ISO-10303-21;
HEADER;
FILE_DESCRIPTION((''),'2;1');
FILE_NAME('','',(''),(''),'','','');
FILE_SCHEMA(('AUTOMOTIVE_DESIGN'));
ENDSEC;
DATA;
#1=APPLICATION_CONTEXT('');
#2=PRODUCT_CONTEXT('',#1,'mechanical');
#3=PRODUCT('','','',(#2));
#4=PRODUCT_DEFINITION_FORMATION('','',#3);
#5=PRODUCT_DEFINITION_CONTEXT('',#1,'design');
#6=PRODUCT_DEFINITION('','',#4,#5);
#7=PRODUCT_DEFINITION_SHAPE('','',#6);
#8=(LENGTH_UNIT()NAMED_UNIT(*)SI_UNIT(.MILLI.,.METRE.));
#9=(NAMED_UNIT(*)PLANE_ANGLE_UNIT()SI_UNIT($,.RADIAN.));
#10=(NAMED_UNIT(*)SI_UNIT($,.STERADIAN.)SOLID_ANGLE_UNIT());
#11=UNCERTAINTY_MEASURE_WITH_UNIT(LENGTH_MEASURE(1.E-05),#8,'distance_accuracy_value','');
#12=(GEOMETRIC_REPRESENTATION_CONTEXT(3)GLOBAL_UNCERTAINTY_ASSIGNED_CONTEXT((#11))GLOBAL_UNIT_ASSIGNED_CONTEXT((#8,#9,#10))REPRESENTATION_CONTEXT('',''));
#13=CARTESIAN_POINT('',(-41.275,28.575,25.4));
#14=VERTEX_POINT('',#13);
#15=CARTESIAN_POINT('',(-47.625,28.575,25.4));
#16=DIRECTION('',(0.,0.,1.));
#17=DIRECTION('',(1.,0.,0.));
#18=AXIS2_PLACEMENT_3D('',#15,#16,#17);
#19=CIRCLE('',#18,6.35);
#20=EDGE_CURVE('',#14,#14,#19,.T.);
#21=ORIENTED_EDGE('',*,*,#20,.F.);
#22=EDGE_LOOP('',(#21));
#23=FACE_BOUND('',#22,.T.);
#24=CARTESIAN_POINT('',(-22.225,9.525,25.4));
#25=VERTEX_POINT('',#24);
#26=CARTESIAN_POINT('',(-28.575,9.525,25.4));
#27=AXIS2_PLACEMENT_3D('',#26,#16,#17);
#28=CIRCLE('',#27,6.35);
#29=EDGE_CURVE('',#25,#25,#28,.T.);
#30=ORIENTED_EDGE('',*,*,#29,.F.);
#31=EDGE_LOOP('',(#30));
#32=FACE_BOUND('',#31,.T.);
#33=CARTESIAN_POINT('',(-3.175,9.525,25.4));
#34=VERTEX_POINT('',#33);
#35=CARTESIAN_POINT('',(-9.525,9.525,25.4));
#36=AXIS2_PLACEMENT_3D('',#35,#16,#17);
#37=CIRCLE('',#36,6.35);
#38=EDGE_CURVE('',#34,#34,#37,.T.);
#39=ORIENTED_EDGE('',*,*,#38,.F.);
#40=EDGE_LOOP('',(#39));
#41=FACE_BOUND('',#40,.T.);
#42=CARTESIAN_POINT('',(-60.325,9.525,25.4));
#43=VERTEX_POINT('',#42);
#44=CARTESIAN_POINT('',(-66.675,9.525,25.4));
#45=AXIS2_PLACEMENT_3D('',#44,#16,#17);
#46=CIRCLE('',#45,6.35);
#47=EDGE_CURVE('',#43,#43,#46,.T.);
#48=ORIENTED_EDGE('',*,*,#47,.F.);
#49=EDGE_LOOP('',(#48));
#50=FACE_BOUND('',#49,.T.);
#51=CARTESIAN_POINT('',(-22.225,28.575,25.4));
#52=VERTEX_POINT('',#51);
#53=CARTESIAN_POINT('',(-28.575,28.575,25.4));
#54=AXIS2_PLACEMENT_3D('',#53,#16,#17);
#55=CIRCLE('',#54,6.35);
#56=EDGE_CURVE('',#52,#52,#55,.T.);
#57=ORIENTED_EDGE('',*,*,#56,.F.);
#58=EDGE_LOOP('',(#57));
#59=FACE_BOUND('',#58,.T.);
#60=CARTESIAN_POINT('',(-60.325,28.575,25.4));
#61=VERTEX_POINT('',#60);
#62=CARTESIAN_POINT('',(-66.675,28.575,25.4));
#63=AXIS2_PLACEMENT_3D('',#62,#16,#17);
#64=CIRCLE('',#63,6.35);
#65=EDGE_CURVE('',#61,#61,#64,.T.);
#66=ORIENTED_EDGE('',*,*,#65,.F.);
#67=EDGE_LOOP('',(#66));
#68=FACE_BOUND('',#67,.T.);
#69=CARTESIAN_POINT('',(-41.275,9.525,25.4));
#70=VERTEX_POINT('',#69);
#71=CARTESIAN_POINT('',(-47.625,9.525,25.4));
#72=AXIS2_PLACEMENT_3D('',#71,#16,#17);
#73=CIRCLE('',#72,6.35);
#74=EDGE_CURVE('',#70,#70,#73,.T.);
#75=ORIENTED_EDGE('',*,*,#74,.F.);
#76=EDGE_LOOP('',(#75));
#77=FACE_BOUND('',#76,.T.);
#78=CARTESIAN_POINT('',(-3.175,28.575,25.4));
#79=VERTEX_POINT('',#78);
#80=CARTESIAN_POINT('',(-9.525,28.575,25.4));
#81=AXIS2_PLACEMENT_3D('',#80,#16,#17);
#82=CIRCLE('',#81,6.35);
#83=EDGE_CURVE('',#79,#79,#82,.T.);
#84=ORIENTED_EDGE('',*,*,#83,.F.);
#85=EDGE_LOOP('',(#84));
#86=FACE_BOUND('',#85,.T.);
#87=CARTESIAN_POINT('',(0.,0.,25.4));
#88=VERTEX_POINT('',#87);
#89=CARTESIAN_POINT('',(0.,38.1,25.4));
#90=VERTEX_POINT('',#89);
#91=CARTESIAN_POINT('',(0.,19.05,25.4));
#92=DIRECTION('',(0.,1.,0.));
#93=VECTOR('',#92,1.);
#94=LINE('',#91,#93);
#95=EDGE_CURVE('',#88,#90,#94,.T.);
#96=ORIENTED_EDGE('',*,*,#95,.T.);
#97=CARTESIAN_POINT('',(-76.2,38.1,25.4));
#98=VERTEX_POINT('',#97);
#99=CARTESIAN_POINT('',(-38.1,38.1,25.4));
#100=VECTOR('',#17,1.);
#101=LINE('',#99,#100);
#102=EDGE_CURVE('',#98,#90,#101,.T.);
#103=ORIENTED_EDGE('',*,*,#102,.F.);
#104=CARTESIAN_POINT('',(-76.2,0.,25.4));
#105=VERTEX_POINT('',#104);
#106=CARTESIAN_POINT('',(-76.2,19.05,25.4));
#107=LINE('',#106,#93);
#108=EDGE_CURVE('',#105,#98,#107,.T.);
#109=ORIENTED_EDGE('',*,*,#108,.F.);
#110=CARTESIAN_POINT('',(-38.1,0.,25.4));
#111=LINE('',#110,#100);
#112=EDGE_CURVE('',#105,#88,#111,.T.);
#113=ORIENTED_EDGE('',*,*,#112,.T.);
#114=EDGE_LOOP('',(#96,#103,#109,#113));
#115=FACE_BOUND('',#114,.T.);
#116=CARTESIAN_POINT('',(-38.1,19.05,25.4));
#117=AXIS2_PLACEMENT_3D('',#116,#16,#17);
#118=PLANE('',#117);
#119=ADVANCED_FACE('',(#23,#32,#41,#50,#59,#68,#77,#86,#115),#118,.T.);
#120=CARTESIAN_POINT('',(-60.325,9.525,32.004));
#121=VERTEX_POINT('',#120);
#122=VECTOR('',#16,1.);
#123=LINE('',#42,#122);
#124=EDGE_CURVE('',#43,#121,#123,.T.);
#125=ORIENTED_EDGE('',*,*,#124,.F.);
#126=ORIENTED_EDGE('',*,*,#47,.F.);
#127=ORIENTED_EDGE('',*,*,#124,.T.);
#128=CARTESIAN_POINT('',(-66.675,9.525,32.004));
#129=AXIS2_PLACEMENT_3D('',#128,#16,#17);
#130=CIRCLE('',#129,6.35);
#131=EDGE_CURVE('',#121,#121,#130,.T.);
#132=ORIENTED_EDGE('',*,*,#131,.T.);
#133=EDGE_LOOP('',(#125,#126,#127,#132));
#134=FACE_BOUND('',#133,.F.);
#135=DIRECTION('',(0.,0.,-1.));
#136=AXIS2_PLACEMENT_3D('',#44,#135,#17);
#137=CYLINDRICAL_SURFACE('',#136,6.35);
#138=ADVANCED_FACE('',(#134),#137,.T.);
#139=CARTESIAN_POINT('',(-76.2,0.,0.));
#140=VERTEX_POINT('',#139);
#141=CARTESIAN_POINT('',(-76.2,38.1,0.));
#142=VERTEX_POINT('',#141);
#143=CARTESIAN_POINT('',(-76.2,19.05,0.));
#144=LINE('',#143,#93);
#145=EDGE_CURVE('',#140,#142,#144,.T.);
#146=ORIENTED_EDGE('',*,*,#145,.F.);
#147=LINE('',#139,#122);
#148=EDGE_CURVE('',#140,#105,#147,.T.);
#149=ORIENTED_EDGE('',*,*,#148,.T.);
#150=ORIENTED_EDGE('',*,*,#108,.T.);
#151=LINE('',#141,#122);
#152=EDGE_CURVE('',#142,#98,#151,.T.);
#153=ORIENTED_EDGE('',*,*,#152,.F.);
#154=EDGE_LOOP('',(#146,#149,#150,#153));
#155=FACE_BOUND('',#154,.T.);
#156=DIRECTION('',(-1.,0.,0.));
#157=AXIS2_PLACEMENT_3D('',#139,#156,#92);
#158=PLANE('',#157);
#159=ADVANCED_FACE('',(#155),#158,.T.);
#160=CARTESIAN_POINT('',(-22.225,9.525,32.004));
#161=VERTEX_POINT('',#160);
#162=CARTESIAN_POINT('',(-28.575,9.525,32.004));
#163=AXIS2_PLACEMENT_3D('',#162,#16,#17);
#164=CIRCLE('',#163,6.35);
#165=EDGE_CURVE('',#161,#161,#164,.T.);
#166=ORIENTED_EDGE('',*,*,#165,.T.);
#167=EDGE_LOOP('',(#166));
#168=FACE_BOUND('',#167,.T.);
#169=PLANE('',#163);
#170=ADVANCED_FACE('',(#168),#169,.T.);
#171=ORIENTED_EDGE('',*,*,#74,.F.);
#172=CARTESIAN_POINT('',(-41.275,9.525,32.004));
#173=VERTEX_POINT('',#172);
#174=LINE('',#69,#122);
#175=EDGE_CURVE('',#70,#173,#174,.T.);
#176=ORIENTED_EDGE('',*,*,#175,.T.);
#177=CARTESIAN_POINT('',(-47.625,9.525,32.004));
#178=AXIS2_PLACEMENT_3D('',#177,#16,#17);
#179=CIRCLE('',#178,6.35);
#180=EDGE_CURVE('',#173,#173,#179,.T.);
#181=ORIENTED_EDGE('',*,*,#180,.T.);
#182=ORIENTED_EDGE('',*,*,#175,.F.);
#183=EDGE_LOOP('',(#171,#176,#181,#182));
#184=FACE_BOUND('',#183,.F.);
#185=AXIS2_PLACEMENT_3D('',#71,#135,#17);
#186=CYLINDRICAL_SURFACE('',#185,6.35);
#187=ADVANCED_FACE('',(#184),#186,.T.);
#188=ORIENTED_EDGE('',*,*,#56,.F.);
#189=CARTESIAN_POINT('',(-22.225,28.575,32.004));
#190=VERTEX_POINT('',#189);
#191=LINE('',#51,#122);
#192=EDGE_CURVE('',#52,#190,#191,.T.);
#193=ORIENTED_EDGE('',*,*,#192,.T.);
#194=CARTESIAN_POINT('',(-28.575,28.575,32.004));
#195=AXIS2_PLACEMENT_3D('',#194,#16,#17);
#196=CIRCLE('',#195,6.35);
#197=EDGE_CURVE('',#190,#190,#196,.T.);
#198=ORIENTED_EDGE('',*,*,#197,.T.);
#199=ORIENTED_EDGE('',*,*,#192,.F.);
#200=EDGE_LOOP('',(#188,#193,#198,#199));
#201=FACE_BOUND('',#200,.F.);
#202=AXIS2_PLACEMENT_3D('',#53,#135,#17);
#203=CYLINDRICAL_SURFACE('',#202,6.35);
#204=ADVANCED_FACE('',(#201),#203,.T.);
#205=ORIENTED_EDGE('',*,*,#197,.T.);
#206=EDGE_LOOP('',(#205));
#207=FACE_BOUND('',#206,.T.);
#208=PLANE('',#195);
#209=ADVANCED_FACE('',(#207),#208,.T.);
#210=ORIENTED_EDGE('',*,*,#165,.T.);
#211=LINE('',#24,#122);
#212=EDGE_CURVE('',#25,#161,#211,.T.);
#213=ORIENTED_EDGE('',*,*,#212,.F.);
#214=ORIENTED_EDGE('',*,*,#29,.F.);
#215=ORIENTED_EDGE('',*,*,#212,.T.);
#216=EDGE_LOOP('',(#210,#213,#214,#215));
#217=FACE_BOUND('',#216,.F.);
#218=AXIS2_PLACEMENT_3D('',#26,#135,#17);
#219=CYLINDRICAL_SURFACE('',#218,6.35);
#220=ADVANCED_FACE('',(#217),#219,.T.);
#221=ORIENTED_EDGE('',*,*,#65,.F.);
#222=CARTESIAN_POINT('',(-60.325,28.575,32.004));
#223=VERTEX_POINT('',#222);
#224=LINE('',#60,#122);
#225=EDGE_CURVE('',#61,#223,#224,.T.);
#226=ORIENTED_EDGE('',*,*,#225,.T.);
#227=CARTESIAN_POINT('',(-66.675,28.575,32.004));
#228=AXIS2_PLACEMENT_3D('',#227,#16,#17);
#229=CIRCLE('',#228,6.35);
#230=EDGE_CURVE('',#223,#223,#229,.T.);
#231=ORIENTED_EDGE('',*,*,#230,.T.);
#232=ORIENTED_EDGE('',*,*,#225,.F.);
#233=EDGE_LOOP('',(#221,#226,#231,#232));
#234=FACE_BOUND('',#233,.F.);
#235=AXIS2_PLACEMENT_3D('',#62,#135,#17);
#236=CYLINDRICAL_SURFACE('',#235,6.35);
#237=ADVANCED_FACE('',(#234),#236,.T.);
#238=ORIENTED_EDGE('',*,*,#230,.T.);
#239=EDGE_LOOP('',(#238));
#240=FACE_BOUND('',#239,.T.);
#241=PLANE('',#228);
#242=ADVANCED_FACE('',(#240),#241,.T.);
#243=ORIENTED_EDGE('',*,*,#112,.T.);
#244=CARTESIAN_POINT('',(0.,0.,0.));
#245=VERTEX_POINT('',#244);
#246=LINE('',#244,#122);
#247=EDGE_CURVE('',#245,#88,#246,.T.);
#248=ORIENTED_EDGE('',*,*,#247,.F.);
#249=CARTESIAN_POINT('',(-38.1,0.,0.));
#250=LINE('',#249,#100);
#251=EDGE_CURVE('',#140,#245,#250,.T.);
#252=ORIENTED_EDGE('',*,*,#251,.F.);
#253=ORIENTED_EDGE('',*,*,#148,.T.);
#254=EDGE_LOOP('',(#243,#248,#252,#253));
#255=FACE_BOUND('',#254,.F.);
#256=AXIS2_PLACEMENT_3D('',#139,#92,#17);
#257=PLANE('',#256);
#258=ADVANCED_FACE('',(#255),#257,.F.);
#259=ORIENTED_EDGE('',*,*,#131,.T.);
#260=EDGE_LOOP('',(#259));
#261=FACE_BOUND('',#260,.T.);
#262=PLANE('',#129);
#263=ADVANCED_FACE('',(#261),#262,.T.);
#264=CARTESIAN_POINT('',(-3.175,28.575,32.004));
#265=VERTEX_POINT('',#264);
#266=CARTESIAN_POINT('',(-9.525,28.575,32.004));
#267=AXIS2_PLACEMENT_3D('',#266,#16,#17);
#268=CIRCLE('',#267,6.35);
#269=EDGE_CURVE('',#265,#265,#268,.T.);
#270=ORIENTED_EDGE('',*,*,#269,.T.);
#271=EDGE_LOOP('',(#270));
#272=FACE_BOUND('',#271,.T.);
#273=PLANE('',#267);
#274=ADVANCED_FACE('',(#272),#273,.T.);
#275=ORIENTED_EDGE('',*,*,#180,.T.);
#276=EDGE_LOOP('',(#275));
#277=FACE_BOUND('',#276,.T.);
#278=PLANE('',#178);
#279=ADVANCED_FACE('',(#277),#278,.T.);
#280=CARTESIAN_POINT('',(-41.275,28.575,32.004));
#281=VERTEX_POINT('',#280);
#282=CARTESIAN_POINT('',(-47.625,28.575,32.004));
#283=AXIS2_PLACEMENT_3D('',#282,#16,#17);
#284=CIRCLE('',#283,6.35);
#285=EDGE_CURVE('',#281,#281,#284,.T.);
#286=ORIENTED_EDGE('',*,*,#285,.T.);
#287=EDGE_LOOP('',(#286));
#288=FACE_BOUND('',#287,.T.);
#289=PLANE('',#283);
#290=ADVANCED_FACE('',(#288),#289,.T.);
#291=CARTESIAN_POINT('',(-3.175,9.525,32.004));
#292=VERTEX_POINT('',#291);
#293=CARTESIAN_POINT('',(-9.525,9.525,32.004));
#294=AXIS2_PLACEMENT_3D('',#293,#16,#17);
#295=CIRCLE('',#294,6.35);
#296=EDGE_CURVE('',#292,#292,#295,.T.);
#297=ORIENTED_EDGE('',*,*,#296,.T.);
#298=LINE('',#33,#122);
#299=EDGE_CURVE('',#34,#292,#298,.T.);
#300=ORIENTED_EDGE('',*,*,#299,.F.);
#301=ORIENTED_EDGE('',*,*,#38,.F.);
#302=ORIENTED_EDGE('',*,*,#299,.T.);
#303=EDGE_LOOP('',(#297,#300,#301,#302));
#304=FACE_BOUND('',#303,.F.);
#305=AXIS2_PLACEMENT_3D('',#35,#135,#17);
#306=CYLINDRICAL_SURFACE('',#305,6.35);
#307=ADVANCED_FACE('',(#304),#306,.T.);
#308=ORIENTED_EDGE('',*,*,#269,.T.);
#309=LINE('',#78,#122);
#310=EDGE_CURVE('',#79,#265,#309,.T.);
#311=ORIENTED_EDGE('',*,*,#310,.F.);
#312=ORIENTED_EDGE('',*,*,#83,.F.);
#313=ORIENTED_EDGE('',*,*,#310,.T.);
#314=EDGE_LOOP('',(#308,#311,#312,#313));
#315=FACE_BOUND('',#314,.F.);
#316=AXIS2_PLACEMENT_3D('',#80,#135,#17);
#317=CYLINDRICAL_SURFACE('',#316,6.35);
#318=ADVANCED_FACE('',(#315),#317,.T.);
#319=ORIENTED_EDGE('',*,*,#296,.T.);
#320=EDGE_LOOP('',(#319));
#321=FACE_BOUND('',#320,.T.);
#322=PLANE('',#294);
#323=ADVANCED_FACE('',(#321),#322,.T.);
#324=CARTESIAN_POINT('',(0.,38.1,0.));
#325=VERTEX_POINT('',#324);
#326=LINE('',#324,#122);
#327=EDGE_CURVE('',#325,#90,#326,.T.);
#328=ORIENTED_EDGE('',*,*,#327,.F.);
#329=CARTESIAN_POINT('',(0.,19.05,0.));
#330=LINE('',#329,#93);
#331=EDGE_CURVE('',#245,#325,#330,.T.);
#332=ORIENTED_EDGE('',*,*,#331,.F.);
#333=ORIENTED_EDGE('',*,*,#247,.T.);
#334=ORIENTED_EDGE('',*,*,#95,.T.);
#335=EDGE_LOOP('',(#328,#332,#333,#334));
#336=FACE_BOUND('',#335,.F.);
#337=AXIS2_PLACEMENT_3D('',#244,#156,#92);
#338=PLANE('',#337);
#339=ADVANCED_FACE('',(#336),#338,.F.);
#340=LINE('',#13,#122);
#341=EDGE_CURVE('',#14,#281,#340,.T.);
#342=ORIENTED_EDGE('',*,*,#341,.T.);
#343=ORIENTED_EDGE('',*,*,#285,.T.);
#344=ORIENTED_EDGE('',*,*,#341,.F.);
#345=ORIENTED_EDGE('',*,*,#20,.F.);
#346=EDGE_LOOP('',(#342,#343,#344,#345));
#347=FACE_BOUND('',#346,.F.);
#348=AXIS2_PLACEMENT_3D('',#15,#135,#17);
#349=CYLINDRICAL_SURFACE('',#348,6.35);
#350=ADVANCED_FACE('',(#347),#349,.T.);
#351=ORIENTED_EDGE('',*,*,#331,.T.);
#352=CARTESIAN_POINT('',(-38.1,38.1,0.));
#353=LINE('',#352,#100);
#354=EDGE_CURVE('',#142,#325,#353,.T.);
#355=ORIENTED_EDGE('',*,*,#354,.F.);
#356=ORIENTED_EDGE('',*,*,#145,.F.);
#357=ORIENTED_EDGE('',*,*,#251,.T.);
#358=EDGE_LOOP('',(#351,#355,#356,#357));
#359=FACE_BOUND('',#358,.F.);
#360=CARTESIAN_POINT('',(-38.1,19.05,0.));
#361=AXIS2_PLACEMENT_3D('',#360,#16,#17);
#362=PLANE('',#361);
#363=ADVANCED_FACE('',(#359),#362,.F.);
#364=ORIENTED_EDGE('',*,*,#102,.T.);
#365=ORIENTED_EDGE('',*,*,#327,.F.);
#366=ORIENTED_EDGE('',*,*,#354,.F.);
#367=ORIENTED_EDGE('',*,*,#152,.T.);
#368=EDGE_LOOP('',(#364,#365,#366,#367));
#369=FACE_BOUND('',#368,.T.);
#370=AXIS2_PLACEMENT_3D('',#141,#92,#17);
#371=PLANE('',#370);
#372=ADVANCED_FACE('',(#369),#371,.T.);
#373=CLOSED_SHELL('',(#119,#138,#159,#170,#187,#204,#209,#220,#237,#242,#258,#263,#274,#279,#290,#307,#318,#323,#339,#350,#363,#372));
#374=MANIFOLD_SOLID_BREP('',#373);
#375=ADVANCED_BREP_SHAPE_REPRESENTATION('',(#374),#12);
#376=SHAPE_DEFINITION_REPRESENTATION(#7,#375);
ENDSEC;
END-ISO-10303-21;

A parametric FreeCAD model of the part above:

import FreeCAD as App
import Part
import Sketcher

V = App.Vector
Q = App.Units.Quantity


def add_polygon(sketch, points):
    """Adds a closed chain of lines whose ends are joined by coincident constraints."""
    first, n = sketch.GeometryCount, len(points)
    for a, b in zip(points, points[1:] + points[:1]):
        sketch.addGeometry(Part.LineSegment(App.Vector(*a, 0), App.Vector(*b, 0)), False)
    for i in range(n):
        sketch.addConstraint(Sketcher.Constraint("Coincident", first + i, 2, first + (i + 1) % n, 1))

doc = App.newDocument("Part")
body = doc.addObject("PartDesign::Body", "Body")

sketch1 = body.newObject("Sketcher::SketchObject", "Sketch")
sketch1.AttachmentSupport = (doc.getObject("XY_Plane"), [""])
sketch1.MapMode = "FlatFace"
add_polygon(sketch1, [(-76, 38), (-76, 0), (0, 0), (0, 38)])
sketch1.addConstraint(Sketcher.Constraint("Vertical", 0))
sketch1.addConstraint(Sketcher.Constraint("Horizontal", 1))
sketch1.addConstraint(Sketcher.Constraint("Vertical", 2))
sketch1.addConstraint(Sketcher.Constraint("Horizontal", 3))
sketch1.addConstraint(Sketcher.Constraint("Coincident", 1, 2, -1, 1))
sketch1.addConstraint(Sketcher.Constraint("DistanceX", 1, 1, 1, 2, Q("3 in")))
sketch1.addConstraint(Sketcher.Constraint("DistanceY", 0, 2, 0, 1, Q("1.5 in")))
pad1 = body.newObject("PartDesign::Pad", "Pad")
pad1.Profile = sketch1
pad1.Length = Q("1 in")

sketch2 = body.newObject("Sketcher::SketchObject", "Sketch001")
sketch2.AttachmentSupport = (doc.getObject("XY_Plane"), [""])
sketch2.MapMode = "FlatFace"
sketch2.AttachmentOffset = App.Placement(V(0, 0, 1 * 25.4), App.Rotation())
sketch2.addGeometry(Part.Circle(V(-67, 29, 0), V(0, 0, 1), 6), False)
sketch2.addGeometry(Part.Circle(V(-48, 29, 0), V(0, 0, 1), 6), False)
sketch2.addGeometry(Part.Circle(V(-29, 29, 0), V(0, 0, 1), 6), False)
sketch2.addGeometry(Part.Circle(V(-10, 29, 0), V(0, 0, 1), 6), False)
sketch2.addGeometry(Part.Circle(V(-10, 10, 0), V(0, 0, 1), 6), False)
sketch2.addGeometry(Part.Circle(V(-29, 10, 0), V(0, 0, 1), 6), False)
sketch2.addGeometry(Part.Circle(V(-48, 10, 0), V(0, 0, 1), 6), False)
sketch2.addGeometry(Part.Circle(V(-67, 10, 0), V(0, 0, 1), 6), False)
sketch2.addConstraint(Sketcher.Constraint("Equal", 0, 1))
sketch2.addConstraint(Sketcher.Constraint("Equal", 1, 2))
sketch2.addConstraint(Sketcher.Constraint("Equal", 2, 3))
sketch2.addConstraint(Sketcher.Constraint("Equal", 3, 4))
sketch2.addConstraint(Sketcher.Constraint("Equal", 4, 5))
sketch2.addConstraint(Sketcher.Constraint("Equal", 5, 6))
sketch2.addConstraint(Sketcher.Constraint("Equal", 6, 7))
sketch2.addConstraint(Sketcher.Constraint("Horizontal", 0, 3, 1, 3))
sketch2.addConstraint(Sketcher.Constraint("Horizontal", 1, 3, 2, 3))
sketch2.addConstraint(Sketcher.Constraint("Horizontal", 2, 3, 3, 3))
sketch2.addConstraint(Sketcher.Constraint("Horizontal", 4, 3, 5, 3))
sketch2.addConstraint(Sketcher.Constraint("Horizontal", 5, 3, 6, 3))
sketch2.addConstraint(Sketcher.Constraint("Horizontal", 6, 3, 7, 3))
sketch2.addConstraint(Sketcher.Constraint("Vertical", 3, 3, 4, 3))
sketch2.addConstraint(Sketcher.Constraint("Vertical", 2, 3, 5, 3))
sketch2.addConstraint(Sketcher.Constraint("Vertical", 1, 3, 6, 3))
sketch2.addConstraint(Sketcher.Constraint("Vertical", 0, 3, 7, 3))
sketch2.addConstraint(Sketcher.Constraint("Diameter", 0, Q("0.5 in")))
sketch2.addConstraint(Sketcher.Constraint("DistanceX", 0, 3, 2, 3, Q("1.5 in")))
sketch2.addConstraint(Sketcher.Constraint("DistanceX", 1, 3, 3, 3, Q("1.5 in")))
sketch2.addConstraint(Sketcher.Constraint("DistanceX", 0, 3, 1, 3, Q("0.75 in")))
sketch2.addConstraint(Sketcher.Constraint("DistanceY", 4, 3, 3, 3, Q("0.75 in")))
sketch2.addConstraint(Sketcher.Constraint("DistanceX", 0, 3, -1, 1, Q("2.625 in")))
sketch2.addConstraint(Sketcher.Constraint("DistanceY", -1, 1, 0, 3, Q("1.125 in")))
pad2 = body.newObject("PartDesign::Pad", "Pad001")
pad2.Profile = sketch2
pad2.Length = Q("0.26 in")

doc.recompute()
